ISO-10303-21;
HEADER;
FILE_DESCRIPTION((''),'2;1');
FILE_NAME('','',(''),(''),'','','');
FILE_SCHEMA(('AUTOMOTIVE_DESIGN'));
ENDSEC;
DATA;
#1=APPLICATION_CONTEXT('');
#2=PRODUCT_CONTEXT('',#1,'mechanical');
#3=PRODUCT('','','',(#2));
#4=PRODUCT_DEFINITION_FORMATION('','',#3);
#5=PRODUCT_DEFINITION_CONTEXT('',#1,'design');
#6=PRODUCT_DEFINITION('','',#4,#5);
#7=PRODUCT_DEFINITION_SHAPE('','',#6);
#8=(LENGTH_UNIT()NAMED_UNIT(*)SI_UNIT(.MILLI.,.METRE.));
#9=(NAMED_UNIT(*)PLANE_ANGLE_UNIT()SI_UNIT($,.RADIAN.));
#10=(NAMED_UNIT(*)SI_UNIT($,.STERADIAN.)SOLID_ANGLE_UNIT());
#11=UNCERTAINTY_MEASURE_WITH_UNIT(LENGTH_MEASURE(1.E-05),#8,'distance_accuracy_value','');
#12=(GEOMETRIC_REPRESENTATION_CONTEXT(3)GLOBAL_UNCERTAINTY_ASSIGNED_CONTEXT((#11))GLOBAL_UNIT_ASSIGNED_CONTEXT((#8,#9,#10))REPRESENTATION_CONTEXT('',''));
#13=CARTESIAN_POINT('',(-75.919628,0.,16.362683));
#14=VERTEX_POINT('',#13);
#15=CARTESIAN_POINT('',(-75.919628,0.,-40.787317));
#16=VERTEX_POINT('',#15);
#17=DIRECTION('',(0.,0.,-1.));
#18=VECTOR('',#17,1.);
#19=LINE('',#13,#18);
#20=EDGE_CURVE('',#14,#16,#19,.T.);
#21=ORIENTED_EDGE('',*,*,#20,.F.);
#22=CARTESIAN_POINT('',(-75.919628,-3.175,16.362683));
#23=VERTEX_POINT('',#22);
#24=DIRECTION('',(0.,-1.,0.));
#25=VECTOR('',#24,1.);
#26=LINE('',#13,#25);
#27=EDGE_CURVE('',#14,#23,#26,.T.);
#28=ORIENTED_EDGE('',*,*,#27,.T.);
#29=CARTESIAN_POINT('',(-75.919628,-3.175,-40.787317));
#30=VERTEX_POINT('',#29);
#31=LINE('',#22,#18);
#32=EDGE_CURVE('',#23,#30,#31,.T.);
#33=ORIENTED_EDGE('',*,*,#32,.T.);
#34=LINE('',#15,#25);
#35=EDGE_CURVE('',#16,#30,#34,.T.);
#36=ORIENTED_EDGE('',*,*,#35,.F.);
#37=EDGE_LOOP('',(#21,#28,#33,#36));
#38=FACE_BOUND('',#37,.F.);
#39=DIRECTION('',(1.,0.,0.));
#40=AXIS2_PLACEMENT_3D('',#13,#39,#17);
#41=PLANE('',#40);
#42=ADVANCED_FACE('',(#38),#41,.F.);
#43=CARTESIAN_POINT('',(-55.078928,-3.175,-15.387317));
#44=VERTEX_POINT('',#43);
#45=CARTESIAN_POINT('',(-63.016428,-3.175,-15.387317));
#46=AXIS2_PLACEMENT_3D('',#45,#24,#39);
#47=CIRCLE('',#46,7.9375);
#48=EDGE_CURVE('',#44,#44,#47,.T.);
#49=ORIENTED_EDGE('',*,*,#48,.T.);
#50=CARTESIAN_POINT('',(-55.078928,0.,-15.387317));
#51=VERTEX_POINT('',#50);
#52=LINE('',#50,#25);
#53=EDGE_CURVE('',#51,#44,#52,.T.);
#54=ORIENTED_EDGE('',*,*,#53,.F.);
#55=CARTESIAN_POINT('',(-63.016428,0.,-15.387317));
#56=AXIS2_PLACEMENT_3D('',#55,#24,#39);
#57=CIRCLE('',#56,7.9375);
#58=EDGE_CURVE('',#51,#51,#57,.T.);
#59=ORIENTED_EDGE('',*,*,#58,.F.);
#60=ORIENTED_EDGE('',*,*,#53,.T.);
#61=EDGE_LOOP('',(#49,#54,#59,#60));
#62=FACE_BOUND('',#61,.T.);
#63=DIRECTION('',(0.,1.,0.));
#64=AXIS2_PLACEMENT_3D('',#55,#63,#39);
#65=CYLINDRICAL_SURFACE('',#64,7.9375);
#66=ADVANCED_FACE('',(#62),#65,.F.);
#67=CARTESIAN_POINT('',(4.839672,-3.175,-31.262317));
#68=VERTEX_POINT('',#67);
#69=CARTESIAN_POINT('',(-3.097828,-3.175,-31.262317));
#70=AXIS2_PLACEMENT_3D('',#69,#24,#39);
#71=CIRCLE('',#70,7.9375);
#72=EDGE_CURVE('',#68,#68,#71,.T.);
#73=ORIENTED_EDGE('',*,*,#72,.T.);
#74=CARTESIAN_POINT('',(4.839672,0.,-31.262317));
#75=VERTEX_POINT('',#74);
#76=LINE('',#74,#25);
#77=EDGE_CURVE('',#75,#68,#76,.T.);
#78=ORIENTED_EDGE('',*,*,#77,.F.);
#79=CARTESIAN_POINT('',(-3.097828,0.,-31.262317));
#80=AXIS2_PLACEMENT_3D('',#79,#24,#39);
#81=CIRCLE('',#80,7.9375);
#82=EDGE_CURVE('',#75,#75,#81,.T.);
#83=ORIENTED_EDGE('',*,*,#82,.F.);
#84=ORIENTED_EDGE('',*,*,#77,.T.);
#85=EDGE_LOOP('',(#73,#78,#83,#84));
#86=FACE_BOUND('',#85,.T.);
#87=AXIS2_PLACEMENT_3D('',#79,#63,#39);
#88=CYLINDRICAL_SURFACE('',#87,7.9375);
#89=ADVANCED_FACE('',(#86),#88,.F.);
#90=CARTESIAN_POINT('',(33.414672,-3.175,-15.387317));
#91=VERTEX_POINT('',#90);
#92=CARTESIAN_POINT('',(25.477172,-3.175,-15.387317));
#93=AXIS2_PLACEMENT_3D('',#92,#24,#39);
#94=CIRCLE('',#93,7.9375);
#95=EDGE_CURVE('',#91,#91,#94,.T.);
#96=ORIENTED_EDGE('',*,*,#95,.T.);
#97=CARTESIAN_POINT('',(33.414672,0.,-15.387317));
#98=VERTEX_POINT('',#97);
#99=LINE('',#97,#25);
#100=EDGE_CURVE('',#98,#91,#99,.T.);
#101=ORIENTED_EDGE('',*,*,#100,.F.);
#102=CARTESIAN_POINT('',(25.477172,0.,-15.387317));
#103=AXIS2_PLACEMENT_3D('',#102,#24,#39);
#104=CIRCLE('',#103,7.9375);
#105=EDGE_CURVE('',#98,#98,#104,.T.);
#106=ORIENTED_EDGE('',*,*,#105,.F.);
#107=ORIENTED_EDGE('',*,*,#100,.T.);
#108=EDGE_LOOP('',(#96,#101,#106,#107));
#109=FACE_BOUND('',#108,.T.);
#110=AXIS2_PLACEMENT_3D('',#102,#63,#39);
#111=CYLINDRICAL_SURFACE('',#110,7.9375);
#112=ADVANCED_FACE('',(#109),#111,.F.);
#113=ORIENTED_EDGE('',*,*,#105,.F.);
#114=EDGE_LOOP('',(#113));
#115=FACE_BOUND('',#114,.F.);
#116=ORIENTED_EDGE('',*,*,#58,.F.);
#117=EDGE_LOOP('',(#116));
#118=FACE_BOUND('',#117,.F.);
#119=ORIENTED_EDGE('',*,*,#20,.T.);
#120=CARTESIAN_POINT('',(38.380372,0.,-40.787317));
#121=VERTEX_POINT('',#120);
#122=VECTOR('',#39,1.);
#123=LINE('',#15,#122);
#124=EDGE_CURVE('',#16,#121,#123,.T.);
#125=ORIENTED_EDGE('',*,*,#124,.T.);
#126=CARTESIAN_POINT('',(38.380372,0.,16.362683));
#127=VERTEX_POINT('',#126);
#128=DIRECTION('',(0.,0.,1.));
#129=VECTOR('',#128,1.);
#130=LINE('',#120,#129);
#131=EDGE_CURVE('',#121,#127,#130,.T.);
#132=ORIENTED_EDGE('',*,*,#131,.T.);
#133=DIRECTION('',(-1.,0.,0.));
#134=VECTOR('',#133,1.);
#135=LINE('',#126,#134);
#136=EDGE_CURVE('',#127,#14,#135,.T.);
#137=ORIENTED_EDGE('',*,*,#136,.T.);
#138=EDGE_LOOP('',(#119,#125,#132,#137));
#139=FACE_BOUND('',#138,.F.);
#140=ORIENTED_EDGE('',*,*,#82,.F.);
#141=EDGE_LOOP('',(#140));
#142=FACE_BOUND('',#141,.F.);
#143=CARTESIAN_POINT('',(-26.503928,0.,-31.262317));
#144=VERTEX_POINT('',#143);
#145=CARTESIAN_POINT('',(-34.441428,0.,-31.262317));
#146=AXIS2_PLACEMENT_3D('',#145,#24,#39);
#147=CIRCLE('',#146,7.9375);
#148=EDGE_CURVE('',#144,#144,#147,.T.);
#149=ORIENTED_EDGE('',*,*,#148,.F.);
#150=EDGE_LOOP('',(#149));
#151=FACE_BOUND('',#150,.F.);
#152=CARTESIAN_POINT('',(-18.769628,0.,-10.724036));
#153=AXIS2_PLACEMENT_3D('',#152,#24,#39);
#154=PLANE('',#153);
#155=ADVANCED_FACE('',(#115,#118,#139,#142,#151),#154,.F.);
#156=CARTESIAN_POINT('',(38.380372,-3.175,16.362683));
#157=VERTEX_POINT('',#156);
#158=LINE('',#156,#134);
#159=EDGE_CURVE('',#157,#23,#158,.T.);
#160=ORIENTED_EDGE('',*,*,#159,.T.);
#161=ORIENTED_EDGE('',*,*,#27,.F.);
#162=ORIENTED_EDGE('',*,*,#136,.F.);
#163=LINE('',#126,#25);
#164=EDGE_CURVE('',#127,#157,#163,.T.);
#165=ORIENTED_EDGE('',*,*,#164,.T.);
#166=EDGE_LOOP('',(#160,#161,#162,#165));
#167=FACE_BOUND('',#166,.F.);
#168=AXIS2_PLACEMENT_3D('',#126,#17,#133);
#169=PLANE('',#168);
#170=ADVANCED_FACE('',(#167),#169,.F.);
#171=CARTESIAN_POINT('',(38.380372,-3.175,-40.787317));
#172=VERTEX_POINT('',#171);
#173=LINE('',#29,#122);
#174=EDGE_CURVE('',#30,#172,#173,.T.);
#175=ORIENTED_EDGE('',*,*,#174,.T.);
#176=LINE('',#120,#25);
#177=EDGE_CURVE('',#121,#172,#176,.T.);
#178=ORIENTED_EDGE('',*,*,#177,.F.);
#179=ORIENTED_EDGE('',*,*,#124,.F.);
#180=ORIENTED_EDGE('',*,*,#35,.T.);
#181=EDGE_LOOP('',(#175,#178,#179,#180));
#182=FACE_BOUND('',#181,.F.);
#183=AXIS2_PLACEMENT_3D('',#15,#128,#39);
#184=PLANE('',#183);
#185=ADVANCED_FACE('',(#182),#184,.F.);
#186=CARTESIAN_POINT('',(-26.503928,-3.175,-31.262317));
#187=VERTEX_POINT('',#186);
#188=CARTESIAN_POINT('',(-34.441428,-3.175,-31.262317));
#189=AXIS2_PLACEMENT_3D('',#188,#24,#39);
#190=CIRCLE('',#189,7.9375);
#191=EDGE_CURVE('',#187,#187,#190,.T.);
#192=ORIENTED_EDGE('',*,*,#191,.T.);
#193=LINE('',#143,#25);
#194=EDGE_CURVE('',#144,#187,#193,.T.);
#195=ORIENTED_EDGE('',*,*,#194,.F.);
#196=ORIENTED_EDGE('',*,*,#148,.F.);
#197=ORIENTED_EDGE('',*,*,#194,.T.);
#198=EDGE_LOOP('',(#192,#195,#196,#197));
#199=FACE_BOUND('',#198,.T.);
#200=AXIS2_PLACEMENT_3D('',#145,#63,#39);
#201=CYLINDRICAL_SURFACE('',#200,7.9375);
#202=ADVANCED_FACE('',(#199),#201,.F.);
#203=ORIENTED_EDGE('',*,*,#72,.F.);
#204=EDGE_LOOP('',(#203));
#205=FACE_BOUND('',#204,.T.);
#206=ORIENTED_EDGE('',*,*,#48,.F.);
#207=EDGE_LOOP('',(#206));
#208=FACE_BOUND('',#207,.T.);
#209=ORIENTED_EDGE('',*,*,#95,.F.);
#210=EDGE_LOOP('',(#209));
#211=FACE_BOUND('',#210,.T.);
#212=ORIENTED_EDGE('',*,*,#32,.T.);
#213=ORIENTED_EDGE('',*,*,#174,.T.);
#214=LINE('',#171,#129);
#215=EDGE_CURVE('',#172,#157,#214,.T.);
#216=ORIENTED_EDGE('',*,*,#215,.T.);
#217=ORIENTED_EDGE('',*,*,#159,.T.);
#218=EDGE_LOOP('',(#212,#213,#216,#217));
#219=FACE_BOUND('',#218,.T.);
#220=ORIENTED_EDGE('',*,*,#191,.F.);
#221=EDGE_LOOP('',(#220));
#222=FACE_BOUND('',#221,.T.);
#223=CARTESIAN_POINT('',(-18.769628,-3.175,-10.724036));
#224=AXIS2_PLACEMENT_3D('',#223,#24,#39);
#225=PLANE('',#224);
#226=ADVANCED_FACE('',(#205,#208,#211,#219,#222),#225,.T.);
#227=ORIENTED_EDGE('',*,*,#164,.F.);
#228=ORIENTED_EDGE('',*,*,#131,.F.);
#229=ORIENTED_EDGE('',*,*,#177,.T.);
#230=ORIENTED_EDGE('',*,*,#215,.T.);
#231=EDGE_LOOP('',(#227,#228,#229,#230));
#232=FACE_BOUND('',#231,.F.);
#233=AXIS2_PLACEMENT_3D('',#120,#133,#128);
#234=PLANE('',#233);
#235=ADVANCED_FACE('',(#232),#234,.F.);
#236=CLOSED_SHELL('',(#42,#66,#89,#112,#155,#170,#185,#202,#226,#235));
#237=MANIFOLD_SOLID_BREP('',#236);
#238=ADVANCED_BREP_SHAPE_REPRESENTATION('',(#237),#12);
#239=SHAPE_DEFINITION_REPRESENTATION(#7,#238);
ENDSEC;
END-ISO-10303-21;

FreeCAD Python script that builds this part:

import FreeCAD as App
import Part
import Sketcher
Q = App.Units.Quantity


def add_polygon(sketch, points):
    """Adds a closed chain of lines whose ends are joined by coincident constraints."""
    first, n = sketch.GeometryCount, len(points)
    for a, b in zip(points, points[1:] + points[:1]):
        sketch.addGeometry(Part.LineSegment(App.Vector(*a, 0), App.Vector(*b, 0)), False)
    for i in range(n):
        sketch.addConstraint(Sketcher.Constraint("Coincident", first + i, 2, first + (i + 1) % n, 1))

doc = App.newDocument("Part")
body = doc.addObject("PartDesign::Body", "Body")

# Sketch on XZ plane
sketch1 = body.newObject("Sketcher::SketchObject", "Sketch")
sketch1.AttachmentSupport = (doc.getObject("XZ_Plane"), [""])
sketch1.MapMode = "FlatFace"
add_polygon(sketch1, [(-76, 16), (-76, -41), (38, -41), (38, 16)])  # lines 0-3
sketch1.addGeometry(Part.Circle(App.Vector(-34, -31, 0), App.Vector(0, 0, 1), 8), False)  # 4
sketch1.addGeometry(Part.Circle(App.Vector(-3, -31, 0), App.Vector(0, 0, 1), 8), False)  # 5
sketch1.addGeometry(Part.Circle(App.Vector(-63, -15, 0), App.Vector(0, 0, 1), 8), False)  # 6
sketch1.addGeometry(Part.Circle(App.Vector(25, -15, 0), App.Vector(0, 0, 1), 8), False)  # 7
sketch1.addConstraint(Sketcher.Constraint("Vertical", 0))
sketch1.addConstraint(Sketcher.Constraint("Horizontal", 1))
sketch1.addConstraint(Sketcher.Constraint("Vertical", 2))
sketch1.addConstraint(Sketcher.Constraint("Horizontal", 3))
sketch1.addConstraint(Sketcher.Constraint("Equal", 4, 5))
sketch1.addConstraint(Sketcher.Constraint("Equal", 5, 6))
sketch1.addConstraint(Sketcher.Constraint("Equal", 6, 7))
sketch1.addConstraint(Sketcher.Constraint("Horizontal", 4, 3, 5, 3))
sketch1.addConstraint(Sketcher.Constraint("Horizontal", 6, 3, 7, 3))
sketch1.addConstraint(Sketcher.Constraint("Diameter", 4, Q("0.625 in")))
sketch1.addConstraint(Sketcher.Constraint("DistanceX", 1, 1, 1, 2, Q("4.5 in")))
sketch1.addConstraint(Sketcher.Constraint("DistanceY", 0, 2, 6, 3, Q("1 in")))
sketch1.addConstraint(Sketcher.Constraint("DistanceY", 0, 2, 0, 1, Q("2.25 in")))
sketch1.addConstraint(Sketcher.Constraint("DistanceX", 4, 3, 5, 3, Q("1.234 in")))
sketch1.addConstraint(Sketcher.Constraint("DistanceX", 6, 3, 4, 3, Q("1.125 in")))
sketch1.addConstraint(Sketcher.Constraint("DistanceY", 4, 3, 6, 3, Q("0.625 in")))
sketch1.addConstraint(Sketcher.Constraint("DistanceX", 5, 3, 7, 3, Q("1.125 in")))
sketch1.addConstraint(Sketcher.Constraint("DistanceX", 0, 2, 6, 3, Q("0.508 in")))
sketch1.addConstraint(Sketcher.Constraint("DistanceY", 4, 3, -1, 1, Q("1.2307999 in")))
sketch1.addConstraint(Sketcher.Constraint("DistanceX", 4, 3, -1, 1, 34.441428))
pad1 = body.newObject("PartDesign::Pad", "Pad")
pad1.Profile = sketch1
pad1.Length = Q("0.125 in")

doc.recompute()
